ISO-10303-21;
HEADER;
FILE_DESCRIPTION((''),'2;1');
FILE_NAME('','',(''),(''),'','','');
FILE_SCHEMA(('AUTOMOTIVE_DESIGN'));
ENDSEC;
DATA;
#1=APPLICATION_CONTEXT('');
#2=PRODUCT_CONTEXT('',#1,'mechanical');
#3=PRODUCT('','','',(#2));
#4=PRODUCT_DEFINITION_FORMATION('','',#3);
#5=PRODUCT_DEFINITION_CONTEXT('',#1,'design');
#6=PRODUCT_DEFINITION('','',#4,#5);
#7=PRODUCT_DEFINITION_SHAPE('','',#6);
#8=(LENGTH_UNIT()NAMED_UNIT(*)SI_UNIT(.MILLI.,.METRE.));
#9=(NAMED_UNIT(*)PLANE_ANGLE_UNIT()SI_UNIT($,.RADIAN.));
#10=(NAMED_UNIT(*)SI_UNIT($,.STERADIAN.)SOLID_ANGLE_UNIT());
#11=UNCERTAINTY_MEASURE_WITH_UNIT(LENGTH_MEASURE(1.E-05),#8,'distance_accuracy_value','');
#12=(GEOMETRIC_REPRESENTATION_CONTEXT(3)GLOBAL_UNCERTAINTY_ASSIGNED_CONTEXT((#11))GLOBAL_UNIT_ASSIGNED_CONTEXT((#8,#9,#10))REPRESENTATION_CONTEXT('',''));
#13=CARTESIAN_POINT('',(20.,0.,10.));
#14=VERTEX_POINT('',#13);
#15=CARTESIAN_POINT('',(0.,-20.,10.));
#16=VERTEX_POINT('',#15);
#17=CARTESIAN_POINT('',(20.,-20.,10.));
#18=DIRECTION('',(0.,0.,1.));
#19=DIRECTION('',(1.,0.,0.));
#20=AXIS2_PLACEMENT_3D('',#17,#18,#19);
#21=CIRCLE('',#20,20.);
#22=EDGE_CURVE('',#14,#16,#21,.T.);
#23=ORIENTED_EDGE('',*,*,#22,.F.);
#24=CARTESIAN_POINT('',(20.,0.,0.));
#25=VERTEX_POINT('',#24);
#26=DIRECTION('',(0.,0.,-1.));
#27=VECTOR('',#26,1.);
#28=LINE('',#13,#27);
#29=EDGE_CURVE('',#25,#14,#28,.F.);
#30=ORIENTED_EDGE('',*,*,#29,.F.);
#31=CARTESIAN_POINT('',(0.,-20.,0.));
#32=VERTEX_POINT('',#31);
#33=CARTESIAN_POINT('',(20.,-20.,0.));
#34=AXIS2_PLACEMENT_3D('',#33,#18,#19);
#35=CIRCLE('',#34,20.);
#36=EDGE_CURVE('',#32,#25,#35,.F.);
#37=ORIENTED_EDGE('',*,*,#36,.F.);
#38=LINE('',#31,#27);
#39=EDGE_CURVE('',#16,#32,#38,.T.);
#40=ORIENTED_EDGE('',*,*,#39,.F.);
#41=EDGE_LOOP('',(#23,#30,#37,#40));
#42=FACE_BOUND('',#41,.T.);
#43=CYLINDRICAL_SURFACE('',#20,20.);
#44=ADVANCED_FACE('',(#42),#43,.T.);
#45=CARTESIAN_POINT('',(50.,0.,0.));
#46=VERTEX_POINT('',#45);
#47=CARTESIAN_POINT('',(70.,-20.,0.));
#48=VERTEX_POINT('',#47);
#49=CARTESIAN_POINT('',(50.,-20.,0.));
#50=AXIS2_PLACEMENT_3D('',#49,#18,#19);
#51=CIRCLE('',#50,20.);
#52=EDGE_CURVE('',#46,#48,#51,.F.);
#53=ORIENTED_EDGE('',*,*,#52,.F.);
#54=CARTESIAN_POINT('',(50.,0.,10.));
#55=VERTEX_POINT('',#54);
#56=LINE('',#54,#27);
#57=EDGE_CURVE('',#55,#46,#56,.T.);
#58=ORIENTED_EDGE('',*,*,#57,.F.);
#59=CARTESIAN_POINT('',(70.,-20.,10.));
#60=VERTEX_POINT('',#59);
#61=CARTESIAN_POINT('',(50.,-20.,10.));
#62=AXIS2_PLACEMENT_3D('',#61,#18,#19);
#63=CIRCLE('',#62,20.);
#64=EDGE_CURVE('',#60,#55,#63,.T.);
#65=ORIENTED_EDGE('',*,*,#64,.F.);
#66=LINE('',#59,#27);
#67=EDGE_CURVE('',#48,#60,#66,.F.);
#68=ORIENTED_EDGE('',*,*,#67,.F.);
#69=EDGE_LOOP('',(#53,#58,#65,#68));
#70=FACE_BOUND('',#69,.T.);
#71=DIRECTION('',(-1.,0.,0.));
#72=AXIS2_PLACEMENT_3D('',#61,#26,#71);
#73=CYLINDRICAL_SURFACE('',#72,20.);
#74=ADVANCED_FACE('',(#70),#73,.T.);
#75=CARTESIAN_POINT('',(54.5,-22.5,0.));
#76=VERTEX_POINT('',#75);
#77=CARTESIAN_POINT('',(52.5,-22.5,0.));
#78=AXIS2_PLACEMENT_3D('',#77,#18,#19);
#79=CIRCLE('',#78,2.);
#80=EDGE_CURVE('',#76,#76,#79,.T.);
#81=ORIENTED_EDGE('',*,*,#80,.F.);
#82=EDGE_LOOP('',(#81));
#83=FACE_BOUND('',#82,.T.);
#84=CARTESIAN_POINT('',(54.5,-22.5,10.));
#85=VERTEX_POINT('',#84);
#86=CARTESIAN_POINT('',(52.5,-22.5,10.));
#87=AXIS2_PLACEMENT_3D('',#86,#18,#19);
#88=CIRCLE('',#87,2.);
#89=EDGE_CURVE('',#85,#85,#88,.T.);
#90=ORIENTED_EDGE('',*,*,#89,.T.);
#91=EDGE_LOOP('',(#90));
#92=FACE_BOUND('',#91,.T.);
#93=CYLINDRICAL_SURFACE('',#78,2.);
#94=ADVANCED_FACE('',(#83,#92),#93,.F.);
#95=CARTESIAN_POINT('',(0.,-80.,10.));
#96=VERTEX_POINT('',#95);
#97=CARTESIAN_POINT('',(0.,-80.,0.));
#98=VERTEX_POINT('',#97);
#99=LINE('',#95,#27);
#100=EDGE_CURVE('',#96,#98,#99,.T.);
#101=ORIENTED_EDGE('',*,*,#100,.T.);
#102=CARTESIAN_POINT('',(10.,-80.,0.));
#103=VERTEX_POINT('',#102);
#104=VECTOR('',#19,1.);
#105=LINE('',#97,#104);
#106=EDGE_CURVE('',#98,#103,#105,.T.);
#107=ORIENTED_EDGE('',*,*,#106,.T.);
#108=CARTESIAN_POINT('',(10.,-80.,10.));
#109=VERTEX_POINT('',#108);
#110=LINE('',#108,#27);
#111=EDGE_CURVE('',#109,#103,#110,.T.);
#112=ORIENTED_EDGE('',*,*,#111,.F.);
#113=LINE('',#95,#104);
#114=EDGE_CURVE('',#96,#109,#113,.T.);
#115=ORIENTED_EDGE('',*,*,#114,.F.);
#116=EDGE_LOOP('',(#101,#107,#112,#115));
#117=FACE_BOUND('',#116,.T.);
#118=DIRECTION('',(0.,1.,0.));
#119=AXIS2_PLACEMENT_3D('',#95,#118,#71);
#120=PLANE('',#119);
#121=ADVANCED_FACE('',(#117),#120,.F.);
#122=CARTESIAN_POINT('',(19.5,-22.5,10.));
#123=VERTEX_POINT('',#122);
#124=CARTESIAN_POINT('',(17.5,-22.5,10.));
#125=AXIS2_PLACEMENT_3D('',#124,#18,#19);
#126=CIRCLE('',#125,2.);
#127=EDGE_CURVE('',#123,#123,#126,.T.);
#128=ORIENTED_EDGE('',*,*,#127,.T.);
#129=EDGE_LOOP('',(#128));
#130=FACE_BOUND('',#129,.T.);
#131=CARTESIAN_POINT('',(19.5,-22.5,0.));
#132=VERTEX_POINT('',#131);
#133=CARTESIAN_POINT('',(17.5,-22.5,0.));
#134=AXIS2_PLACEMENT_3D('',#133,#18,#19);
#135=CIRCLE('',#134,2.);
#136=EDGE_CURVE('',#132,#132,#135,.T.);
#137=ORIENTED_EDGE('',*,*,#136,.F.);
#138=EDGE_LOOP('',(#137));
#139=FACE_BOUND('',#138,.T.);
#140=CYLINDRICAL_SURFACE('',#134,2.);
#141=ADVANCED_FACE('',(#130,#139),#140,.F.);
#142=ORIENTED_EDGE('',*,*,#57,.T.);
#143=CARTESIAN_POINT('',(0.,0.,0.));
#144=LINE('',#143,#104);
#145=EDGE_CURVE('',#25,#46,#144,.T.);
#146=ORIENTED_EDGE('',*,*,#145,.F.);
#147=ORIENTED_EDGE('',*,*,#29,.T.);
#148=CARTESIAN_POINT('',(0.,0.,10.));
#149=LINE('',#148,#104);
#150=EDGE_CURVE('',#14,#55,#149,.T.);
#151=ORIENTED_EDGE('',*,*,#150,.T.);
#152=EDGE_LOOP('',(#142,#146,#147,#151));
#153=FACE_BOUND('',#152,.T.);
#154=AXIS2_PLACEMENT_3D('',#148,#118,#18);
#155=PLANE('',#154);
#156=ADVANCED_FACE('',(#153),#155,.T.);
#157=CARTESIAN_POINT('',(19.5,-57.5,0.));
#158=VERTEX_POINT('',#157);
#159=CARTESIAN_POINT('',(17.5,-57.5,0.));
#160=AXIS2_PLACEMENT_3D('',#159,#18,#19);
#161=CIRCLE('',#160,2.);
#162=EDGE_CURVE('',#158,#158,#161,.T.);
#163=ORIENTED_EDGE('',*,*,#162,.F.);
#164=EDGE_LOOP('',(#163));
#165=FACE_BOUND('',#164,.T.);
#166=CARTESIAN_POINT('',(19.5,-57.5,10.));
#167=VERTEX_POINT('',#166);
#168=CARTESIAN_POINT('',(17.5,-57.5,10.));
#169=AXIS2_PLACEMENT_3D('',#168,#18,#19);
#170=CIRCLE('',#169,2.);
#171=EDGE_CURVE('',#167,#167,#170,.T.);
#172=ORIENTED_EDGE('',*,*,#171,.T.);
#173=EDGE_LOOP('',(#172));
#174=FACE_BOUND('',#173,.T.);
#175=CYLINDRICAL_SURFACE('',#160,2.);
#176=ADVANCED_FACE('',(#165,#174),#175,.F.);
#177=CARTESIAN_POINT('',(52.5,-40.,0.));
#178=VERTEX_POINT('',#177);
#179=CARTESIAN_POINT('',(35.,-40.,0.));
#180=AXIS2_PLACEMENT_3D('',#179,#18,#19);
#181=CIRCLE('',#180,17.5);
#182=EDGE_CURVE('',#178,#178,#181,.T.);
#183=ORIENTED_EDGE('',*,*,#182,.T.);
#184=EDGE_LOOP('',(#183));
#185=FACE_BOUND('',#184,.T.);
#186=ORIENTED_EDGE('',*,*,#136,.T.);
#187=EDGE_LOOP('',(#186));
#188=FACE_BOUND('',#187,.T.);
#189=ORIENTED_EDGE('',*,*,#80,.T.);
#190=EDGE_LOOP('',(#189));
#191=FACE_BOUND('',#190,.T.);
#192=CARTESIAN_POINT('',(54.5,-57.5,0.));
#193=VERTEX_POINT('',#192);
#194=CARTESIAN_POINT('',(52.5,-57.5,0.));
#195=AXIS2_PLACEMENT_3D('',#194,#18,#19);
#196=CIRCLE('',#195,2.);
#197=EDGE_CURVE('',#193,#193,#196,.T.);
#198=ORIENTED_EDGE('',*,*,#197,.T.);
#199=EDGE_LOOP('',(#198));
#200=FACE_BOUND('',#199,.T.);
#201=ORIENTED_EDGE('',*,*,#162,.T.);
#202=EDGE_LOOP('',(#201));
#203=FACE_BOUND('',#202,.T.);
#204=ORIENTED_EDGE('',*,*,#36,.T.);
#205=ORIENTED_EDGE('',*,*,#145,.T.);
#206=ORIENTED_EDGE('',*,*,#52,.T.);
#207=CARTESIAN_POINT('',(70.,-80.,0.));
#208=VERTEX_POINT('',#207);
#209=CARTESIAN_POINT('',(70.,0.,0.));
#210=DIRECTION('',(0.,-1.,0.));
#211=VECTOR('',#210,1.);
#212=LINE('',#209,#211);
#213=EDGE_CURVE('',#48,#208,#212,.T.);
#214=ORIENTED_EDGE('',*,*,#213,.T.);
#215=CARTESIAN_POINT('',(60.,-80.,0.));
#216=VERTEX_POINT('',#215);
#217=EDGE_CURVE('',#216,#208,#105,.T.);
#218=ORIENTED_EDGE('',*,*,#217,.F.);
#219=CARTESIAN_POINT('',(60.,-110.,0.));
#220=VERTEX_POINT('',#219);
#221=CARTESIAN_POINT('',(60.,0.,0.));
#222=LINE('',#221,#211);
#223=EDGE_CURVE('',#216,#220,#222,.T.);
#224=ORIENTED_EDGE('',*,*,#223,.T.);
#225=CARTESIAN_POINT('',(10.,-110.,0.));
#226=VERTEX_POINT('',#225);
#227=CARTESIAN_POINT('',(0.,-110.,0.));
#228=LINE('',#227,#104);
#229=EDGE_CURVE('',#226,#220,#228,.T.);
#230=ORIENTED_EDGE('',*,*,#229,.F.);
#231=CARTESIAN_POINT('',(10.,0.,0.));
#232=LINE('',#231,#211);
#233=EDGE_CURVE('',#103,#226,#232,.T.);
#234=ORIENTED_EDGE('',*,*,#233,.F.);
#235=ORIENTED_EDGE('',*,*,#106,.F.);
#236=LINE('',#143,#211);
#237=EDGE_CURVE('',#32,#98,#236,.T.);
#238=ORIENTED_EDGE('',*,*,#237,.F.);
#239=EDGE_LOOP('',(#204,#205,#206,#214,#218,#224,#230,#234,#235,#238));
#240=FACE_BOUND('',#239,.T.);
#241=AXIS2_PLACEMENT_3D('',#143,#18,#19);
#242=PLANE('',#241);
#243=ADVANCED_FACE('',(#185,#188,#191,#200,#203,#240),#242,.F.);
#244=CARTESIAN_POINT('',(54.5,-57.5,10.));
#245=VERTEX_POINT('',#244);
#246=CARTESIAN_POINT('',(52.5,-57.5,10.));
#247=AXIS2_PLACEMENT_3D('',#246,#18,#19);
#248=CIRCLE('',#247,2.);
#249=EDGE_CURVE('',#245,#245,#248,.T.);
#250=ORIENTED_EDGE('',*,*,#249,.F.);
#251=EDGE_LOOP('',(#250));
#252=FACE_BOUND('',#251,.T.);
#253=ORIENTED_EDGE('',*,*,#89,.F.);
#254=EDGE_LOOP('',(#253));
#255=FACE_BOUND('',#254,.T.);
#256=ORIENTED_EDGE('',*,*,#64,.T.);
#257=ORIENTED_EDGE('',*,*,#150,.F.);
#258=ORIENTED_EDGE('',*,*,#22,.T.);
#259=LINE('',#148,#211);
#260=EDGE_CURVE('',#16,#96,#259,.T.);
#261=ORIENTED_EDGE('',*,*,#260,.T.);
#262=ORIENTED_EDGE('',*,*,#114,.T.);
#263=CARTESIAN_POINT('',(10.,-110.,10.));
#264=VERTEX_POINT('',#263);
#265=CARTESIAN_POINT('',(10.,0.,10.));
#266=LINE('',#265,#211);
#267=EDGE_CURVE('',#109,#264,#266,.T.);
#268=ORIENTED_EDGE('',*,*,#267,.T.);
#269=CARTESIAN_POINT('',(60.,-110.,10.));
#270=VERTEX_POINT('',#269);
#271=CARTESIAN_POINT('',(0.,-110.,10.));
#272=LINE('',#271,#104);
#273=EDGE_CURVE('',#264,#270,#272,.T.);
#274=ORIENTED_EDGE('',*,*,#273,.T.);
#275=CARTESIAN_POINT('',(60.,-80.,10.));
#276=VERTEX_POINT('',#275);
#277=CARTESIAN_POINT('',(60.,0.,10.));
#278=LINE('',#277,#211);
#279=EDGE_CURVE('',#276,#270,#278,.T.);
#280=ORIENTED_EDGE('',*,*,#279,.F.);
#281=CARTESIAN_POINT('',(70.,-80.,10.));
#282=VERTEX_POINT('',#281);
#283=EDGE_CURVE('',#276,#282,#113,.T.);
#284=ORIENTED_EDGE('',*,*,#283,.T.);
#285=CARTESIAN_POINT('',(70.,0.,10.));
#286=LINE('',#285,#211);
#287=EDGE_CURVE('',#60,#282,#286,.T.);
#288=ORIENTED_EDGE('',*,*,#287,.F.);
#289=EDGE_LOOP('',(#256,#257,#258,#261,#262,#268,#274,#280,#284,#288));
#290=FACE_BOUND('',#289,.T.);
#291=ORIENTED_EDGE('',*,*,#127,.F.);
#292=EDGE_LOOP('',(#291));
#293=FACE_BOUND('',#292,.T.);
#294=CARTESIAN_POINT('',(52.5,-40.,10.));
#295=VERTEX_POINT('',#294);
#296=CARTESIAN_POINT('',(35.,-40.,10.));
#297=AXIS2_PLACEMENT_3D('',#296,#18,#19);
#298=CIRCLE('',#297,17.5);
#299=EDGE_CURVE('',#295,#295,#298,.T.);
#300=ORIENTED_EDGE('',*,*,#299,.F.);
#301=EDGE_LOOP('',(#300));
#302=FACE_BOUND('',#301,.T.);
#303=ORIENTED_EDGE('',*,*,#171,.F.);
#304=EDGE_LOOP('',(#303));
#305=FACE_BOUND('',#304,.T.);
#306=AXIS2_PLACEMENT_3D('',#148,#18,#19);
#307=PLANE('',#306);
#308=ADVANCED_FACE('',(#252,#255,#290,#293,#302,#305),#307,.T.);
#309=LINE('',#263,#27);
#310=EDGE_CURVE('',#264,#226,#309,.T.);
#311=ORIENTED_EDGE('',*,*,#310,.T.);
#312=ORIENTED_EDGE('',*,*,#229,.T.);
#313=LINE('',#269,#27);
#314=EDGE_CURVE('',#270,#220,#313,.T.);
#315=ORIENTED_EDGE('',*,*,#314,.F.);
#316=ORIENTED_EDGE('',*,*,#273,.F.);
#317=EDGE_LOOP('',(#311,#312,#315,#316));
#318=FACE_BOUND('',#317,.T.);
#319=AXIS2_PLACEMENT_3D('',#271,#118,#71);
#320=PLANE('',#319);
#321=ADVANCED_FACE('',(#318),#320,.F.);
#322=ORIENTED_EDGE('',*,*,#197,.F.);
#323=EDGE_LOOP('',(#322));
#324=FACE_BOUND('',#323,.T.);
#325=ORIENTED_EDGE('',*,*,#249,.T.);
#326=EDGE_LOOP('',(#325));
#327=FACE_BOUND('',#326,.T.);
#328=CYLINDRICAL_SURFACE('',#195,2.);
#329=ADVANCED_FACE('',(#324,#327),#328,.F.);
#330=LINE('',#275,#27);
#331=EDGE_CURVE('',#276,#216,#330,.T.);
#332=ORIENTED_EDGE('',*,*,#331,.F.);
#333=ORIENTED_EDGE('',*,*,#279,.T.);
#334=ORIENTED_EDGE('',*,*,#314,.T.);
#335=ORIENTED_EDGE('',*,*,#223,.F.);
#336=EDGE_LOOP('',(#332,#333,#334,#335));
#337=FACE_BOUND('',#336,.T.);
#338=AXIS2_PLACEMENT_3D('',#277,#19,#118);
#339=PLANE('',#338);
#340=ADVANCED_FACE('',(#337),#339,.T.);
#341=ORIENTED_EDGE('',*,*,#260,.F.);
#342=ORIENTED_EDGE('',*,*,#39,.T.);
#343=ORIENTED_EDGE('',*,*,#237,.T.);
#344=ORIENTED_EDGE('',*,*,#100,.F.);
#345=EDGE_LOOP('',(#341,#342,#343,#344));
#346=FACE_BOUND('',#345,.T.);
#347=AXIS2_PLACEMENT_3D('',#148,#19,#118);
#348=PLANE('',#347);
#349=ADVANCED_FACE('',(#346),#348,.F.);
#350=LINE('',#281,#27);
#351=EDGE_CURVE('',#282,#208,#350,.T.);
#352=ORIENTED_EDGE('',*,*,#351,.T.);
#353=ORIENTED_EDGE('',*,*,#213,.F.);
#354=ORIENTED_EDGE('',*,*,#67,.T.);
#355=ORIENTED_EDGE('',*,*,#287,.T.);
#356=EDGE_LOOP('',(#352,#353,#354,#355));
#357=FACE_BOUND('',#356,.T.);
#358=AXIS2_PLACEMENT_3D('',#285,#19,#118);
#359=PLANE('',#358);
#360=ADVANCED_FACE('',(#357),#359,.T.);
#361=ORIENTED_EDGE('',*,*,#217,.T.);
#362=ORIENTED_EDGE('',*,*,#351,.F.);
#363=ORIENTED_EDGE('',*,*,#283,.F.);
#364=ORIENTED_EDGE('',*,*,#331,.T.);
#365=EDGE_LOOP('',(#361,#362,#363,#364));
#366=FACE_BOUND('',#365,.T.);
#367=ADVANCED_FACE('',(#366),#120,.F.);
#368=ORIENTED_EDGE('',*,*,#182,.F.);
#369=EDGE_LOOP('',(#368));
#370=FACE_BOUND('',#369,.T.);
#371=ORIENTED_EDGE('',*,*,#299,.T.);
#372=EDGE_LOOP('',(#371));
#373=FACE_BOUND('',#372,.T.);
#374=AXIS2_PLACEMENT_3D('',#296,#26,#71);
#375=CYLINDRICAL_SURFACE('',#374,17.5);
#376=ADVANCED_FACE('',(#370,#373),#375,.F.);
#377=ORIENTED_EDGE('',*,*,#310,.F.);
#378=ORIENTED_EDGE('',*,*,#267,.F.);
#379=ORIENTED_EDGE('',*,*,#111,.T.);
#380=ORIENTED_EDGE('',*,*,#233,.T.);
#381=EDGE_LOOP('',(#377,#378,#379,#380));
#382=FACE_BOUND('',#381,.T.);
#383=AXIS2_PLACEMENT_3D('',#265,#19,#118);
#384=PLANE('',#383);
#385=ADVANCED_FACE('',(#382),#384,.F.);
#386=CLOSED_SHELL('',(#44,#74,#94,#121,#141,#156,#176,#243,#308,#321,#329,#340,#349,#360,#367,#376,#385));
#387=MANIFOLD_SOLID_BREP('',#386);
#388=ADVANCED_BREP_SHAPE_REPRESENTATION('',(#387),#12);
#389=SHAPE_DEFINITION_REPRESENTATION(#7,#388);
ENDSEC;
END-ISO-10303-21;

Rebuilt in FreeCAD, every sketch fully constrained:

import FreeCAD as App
import Part
import Sketcher
from FreeCAD import Vector


def edges_at(feature, points):
    """Names of the edges that pass closest to the given points."""
    edges = feature.Shape.Edges
    near = lambda p: min(range(len(edges)), key=lambda i: edges[i].distToShape(Part.Vertex(*p))[0])
    return sorted({f"Edge{near(p) + 1}" for p in points})

doc = App.newDocument("Part")
body = doc.addObject("PartDesign::Body", "Body")

sketch1 = doc.addObject("Sketcher::SketchObject", "Sketch")
body.addObject(sketch1)
sketch1.AttachmentSupport = (doc.XY_Plane, [""])
sketch1.MapMode = "FlatFace"
sketch1.addGeometry(Part.LineSegment(Vector(0, 0, 0), Vector(0, -80, 0)), False)
sketch1.addGeometry(Part.LineSegment(Vector(0, -80, 0), Vector(10, -80, 0)), False)
sketch1.addGeometry(Part.LineSegment(Vector(10, -80, 0), Vector(10, -110, 0)), False)
sketch1.addGeometry(Part.LineSegment(Vector(10, -110, 0), Vector(60, -110, 0)), False)
sketch1.addGeometry(Part.LineSegment(Vector(60, -110, 0), Vector(60, -80, 0)), False)
sketch1.addGeometry(Part.LineSegment(Vector(60, -80, 0), Vector(70, -80, 0)), False)
sketch1.addGeometry(Part.LineSegment(Vector(70, -80, 0), Vector(70, 0, 0)), False)
sketch1.addGeometry(Part.LineSegment(Vector(70, 0, 0), Vector(0, 0, 0)), False)
sketch1.addGeometry(Part.Circle(Vector(35, -40, 0), Vector(0, 0, 1), 18), False)
sketch1.addConstraint(Sketcher.Constraint("Coincident", 0, 2, 1, 1))
sketch1.addConstraint(Sketcher.Constraint("Coincident", 1, 2, 2, 1))
sketch1.addConstraint(Sketcher.Constraint("Coincident", 2, 2, 3, 1))
sketch1.addConstraint(Sketcher.Constraint("Coincident", 3, 2, 4, 1))
sketch1.addConstraint(Sketcher.Constraint("Coincident", 4, 2, 5, 1))
sketch1.addConstraint(Sketcher.Constraint("Coincident", 5, 2, 6, 1))
sketch1.addConstraint(Sketcher.Constraint("Coincident", 6, 2, 7, 1))
sketch1.addConstraint(Sketcher.Constraint("Coincident", 7, 2, 0, 1))
sketch1.addConstraint(Sketcher.Constraint("Vertical", 0))
sketch1.addConstraint(Sketcher.Constraint("Horizontal", 1))
sketch1.addConstraint(Sketcher.Constraint("Vertical", 2))
sketch1.addConstraint(Sketcher.Constraint("Horizontal", 3))
sketch1.addConstraint(Sketcher.Constraint("Vertical", 4))
sketch1.addConstraint(Sketcher.Constraint("Horizontal", 5))
sketch1.addConstraint(Sketcher.Constraint("Vertical", 6))
sketch1.addConstraint(Sketcher.Constraint("Horizontal", 7))
sketch1.addConstraint(Sketcher.Constraint("Coincident", 7, 2, -1, 1))
sketch1.addConstraint(Sketcher.Constraint("Horizontal", 1, 2, 4, 2))
sketch1.addConstraint(Sketcher.Constraint("Equal", 1, 5))
sketch1.addConstraint(Sketcher.Constraint("Diameter", 8, 35.0))
sketch1.addConstraint(Sketcher.Constraint("DistanceX", 1, 1, 1, 2, 10.0))
sketch1.addConstraint(Sketcher.Constraint("DistanceX", 3, 1, 3, 2, 50.0))
sketch1.addConstraint(Sketcher.Constraint("DistanceY", 0, 2, 0, 1, 80.0))
sketch1.addConstraint(Sketcher.Constraint("DistanceY", 2, 2, 2, 1, 30.0))
sketch1.addConstraint(Sketcher.Constraint("DistanceX", -1, 1, 8, 3, 35.0))
sketch1.addConstraint(Sketcher.Constraint("DistanceY", 8, 3, -1, 1, 40.0))
pad1 = doc.addObject("PartDesign::Pad", "Pad")
body.addObject(pad1)
pad1.Profile = sketch1
pad1.Length = 10
doc.recompute()

fillet = doc.addObject("PartDesign::Fillet", "Fillet")
body.addObject(fillet)
fillet.Base = (pad1, edges_at(pad1, [(70, 0, 5), (0, 0, 5)]))
fillet.Radius = 20

sketch2 = doc.addObject("Sketcher::SketchObject", "Sketch001")
body.addObject(sketch2)
sketch2.AttachmentSupport = (doc.XY_Plane, [""])
sketch2.MapMode = "FlatFace"
sketch2.AttachmentOffset = App.Placement(Vector(0, 0, 10), App.Rotation())
sketch2.addGeometry(Part.Circle(Vector(17.5, -22.5, 0), Vector(0, 0, 1), 2), False)
sketch2.addGeometry(Part.Circle(Vector(52.5, -22.5, 0), Vector(0, 0, 1), 2), False)
sketch2.addGeometry(Part.Circle(Vector(52.5, -57.5, 0), Vector(0, 0, 1), 2), False)
sketch2.addGeometry(Part.Circle(Vector(17.5, -57.5, 0), Vector(0, 0, 1), 2), False)
sketch2.addConstraint(Sketcher.Constraint("Equal", 0, 1))
sketch2.addConstraint(Sketcher.Constraint("Equal", 1, 2))
sketch2.addConstraint(Sketcher.Constraint("Equal", 2, 3))
sketch2.addConstraint(Sketcher.Constraint("Horizontal", 0, 3, 1, 3))
sketch2.addConstraint(Sketcher.Constraint("Horizontal", 2, 3, 3, 3))
sketch2.addConstraint(Sketcher.Constraint("Vertical", 1, 3, 2, 3))
sketch2.addConstraint(Sketcher.Constraint("Vertical", 0, 3, 3, 3))
sketch2.addConstraint(Sketcher.Constraint("Diameter", 0, 4.0))
sketch2.addConstraint(Sketcher.Constraint("DistanceX", 0, 3, 1, 3, 35.0))
sketch2.addConstraint(Sketcher.Constraint("DistanceY", 2, 3, 1, 3, 35.0))
sketch2.addConstraint(Sketcher.Constraint("DistanceX", -1, 1, 0, 3, 17.5))
sketch2.addConstraint(Sketcher.Constraint("DistanceY", 0, 3, -1, 1, 22.5))
pocket1 = doc.addObject("PartDesign::Pocket", "Pocket")
body.addObject(pocket1)
pocket1.Profile = sketch2
pocket1.Length = 10

doc.recompute()
